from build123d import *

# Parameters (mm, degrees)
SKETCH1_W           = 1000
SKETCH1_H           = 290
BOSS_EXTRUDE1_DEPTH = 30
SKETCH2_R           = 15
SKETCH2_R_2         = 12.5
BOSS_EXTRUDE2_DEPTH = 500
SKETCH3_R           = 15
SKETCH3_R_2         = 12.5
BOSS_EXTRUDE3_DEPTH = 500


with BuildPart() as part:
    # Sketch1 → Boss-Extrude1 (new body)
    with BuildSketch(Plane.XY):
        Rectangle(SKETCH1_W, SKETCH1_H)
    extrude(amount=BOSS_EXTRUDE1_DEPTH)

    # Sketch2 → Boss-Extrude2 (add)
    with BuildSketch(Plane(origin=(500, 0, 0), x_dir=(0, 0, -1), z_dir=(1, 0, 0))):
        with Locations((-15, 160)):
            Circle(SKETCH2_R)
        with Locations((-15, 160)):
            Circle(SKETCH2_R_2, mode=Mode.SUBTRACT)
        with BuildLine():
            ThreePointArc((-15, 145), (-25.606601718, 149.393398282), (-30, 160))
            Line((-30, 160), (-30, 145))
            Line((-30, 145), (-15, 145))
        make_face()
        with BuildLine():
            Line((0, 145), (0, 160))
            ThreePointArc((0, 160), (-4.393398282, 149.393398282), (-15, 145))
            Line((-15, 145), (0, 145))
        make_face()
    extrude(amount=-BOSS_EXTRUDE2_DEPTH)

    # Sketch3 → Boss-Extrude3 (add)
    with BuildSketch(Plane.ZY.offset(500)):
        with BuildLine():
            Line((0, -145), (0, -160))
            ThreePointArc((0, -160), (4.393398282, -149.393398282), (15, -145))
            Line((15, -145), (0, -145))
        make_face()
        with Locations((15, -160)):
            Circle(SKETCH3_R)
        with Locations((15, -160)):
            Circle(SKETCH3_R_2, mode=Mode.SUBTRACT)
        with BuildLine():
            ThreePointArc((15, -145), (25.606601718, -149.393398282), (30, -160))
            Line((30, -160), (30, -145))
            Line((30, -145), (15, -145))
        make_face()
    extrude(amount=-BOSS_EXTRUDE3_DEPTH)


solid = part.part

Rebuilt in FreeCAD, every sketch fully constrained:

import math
import FreeCAD as App
import Part
import Sketcher

V = App.Vector


def add_polygon(sketch, points):
    """Adds a closed chain of lines whose ends are joined by coincident constraints."""
    first, n = sketch.GeometryCount, len(points)
    for a, b in zip(points, points[1:] + points[:1]):
        sketch.addGeometry(Part.LineSegment(App.Vector(*a, 0), App.Vector(*b, 0)), False)
    for i in range(n):
        sketch.addConstraint(Sketcher.Constraint("Coincident", first + i, 2, first + (i + 1) % n, 1))

doc = App.newDocument("Part")
body = doc.addObject("PartDesign::Body", "Body")

sketch1 = body.newObject("Sketcher::SketchObject", "Sketch")
sketch1.AttachmentSupport = (doc.getObject("XY_Plane"), [""])
sketch1.MapMode = "FlatFace"
add_polygon(sketch1, [(-500, 145), (-500, -145), (500, -145), (500, 145)])
sketch1.addConstraint(Sketcher.Constraint("Vertical", 0))
sketch1.addConstraint(Sketcher.Constraint("Horizontal", 1))
sketch1.addConstraint(Sketcher.Constraint("Vertical", 2))
sketch1.addConstraint(Sketcher.Constraint("Horizontal", 3))
sketch1.addConstraint(Sketcher.Constraint("Symmetric", 0, 2, 2, 2, -1, 1))
sketch1.addConstraint(Sketcher.Constraint("DistanceX", 1, 1, 1, 2, 1000.0))
sketch1.addConstraint(Sketcher.Constraint("DistanceY", 0, 2, 0, 1, 290.0))
pad1 = body.newObject("PartDesign::Pad", "Pad")
pad1.Profile = sketch1
pad1.Length = 30

sketch2 = body.newObject("Sketcher::SketchObject", "Sketch001")
sketch2.AttachmentSupport = (doc.getObject("YZ_Plane"), [""])
sketch2.MapMode = "FlatFace"
sketch2.AttachmentOffset = App.Placement(V(0, 0, 500), App.Rotation())
sketch2.addGeometry(Part.LineSegment(V(160, 30, 0), V(145, 30, 0)), False)
sketch2.addGeometry(Part.LineSegment(V(145, 30, 0), V(145, 0, 0)), False)
sketch2.addGeometry(Part.LineSegment(V(145, 0, 0), V(160, 0, 0)), False)
sketch2.addGeometry(Part.ArcOfCircle(Part.Circle(V(160, 15, 0), V(0, 0, 1), 15), math.radians(-90), math.radians(90)), False)
sketch2.addGeometry(Part.Circle(V(160, 15, 0), V(0, 0, 1), 12), False)
sketch2.addConstraint(Sketcher.Constraint("Coincident", 0, 2, 1, 1))
sketch2.addConstraint(Sketcher.Constraint("Coincident", 1, 2, 2, 1))
sketch2.addConstraint(Sketcher.Constraint("Tangent", 2, 2, 3, 1))
sketch2.addConstraint(Sketcher.Constraint("Tangent", 3, 2, 0, 1))
sketch2.addConstraint(Sketcher.Constraint("Horizontal", 0))
sketch2.addConstraint(Sketcher.Constraint("Vertical", 1))
sketch2.addConstraint(Sketcher.Constraint("Horizontal", 2))
sketch2.addConstraint(Sketcher.Constraint("Coincident", 4, 3, 3, 3))
sketch2.addConstraint(Sketcher.Constraint("PointOnObject", 1, 2, -1))
sketch2.addConstraint(Sketcher.Constraint("Diameter", 4, 25.0))
sketch2.addConstraint(Sketcher.Constraint("Radius", 3, 15.0))
sketch2.addConstraint(Sketcher.Constraint("DistanceX", 0, 2, 0, 1, 15.0))
sketch2.addConstraint(Sketcher.Constraint("DistanceX", -1, 1, 3, 3, 160.0))
pad2 = body.newObject("PartDesign::Pad", "Pad001")
pad2.Profile = sketch2
pad2.Length = 500
pad2.Reversed = True

sketch3 = body.newObject("Sketcher::SketchObject", "Sketch002")
sketch3.AttachmentSupport = (doc.getObject("YZ_Plane"), [""])
sketch3.MapMode = "FlatFace"
sketch3.AttachmentOffset = App.Placement(V(0, 0, -500), App.Rotation())
sketch3.addGeometry(Part.LineSegment(V(-145, 0, 0), V(-160, 0, 0)), False)
sketch3.addGeometry(Part.ArcOfCircle(Part.Circle(V(-160, 15, 0), V(0, 0, 1), 15), math.radians(90), math.radians(270)), False)
sketch3.addGeometry(Part.LineSegment(V(-160, 30, 0), V(-145, 30, 0)), False)
sketch3.addGeometry(Part.LineSegment(V(-145, 30, 0), V(-145, 0, 0)), False)
sketch3.addGeometry(Part.Circle(V(-160, 15, 0), V(0, 0, 1), 12), False)
sketch3.addConstraint(Sketcher.Constraint("Tangent", 0, 2, 1, 2))
sketch3.addConstraint(Sketcher.Constraint("Tangent", 1, 1, 2, 1))
sketch3.addConstraint(Sketcher.Constraint("Coincident", 2, 2, 3, 1))
sketch3.addConstraint(Sketcher.Constraint("Coincident", 3, 2, 0, 1))
sketch3.addConstraint(Sketcher.Constraint("Horizontal", 0))
sketch3.addConstraint(Sketcher.Constraint("Horizontal", 2))
sketch3.addConstraint(Sketcher.Constraint("Vertical", 3))
sketch3.addConstraint(Sketcher.Constraint("Coincident", 4, 3, 1, 3))
sketch3.addConstraint(Sketcher.Constraint("PointOnObject", 0, 2, -1))
sketch3.addConstraint(Sketcher.Constraint("Diameter", 4, 25.0))
sketch3.addConstraint(Sketcher.Constraint("Radius", 1, 15.0))
sketch3.addConstraint(Sketcher.Constraint("DistanceX", 0, 2, 0, 1, 15.0))
sketch3.addConstraint(Sketcher.Constraint("DistanceX", 1, 3, -1, 1, 160.0))
pad3 = body.newObject("PartDesign::Pad", "Pad002")
pad3.Profile = sketch3
pad3.Length = 500

doc.recompute()
